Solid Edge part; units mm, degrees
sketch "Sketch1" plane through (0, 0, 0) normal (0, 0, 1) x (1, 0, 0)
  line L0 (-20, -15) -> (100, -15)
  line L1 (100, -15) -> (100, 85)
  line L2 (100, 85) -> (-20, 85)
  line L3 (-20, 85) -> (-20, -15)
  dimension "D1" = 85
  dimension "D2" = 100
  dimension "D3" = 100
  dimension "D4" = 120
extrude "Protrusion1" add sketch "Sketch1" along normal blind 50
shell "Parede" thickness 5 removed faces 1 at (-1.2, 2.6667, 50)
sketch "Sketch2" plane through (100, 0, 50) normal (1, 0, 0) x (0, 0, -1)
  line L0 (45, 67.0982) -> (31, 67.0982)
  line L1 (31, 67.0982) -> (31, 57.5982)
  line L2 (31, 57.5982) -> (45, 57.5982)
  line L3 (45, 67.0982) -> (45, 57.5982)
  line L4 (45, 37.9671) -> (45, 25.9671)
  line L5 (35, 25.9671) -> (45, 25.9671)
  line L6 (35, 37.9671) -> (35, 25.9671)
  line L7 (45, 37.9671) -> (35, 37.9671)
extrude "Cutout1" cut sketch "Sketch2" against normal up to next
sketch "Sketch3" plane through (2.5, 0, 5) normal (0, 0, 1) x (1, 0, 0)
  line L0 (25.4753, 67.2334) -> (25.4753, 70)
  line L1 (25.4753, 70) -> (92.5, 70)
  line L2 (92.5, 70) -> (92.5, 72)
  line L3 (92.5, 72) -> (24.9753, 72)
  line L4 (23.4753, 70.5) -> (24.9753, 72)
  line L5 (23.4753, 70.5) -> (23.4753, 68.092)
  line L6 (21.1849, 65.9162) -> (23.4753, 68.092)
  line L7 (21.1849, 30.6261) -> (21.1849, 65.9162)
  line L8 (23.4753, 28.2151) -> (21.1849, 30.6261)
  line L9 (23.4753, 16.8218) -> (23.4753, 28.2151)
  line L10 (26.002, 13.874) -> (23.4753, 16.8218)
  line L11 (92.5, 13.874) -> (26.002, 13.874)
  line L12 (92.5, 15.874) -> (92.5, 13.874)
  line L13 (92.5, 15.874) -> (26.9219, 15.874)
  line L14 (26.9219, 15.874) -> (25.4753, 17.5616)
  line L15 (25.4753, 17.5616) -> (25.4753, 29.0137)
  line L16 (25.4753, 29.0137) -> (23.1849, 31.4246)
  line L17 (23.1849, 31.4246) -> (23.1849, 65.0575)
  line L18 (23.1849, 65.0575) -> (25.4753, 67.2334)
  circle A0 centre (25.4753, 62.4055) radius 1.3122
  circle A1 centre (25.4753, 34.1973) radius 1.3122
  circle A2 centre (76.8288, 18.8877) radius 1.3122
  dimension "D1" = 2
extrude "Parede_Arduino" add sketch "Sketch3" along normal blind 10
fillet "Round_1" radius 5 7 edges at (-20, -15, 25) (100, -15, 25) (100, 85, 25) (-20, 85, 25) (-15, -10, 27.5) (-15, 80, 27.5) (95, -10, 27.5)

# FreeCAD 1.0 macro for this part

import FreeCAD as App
import Part
import Sketcher

V = App.Vector
Q = App.Units.Quantity


def edges_at(feature, points):
    """Names of the edges that pass closest to the given points."""
    edges = feature.Shape.Edges
    near = lambda p: min(range(len(edges)), key=lambda i: edges[i].distToShape(Part.Vertex(*p))[0])
    return sorted({f"Edge{near(p) + 1}" for p in points})


def faces_at(feature, points):
    """Names of the faces that lie closest to the given points."""
    faces = feature.Shape.Faces
    near = lambda p: min(range(len(faces)), key=lambda i: faces[i].distToShape(Part.Vertex(*p))[0])
    return sorted({f"Face{near(p) + 1}" for p in points})


def add_polygon(sketch, points):
    """Adds a closed chain of lines whose ends are joined by coincident constraints."""
    first, n = sketch.GeometryCount, len(points)
    for a, b in zip(points, points[1:] + points[:1]):
        sketch.addGeometry(Part.LineSegment(App.Vector(*a, 0), App.Vector(*b, 0)), False)
    for i in range(n):
        sketch.addConstraint(Sketcher.Constraint("Coincident", first + i, 2, first + (i + 1) % n, 1))

doc = App.newDocument("Part")
body = doc.addObject("PartDesign::Body", "Body")

sketch1 = body.newObject("Sketcher::SketchObject", "Sketch")
sketch1.AttachmentSupport = (doc.getObject("XY_Plane"), [""])
sketch1.MapMode = "FlatFace"
add_polygon(sketch1, [(-20, 85), (-20, -15), (100, -15), (100, 85)])
sketch1.addConstraint([
    Sketcher.Constraint("Vertical", 0),
    Sketcher.Constraint("Horizontal", 1),
    Sketcher.Constraint("Vertical", 2),
    Sketcher.Constraint("Horizontal", 3),
    Sketcher.Constraint("DistanceX", 0, 2, -1, 1, Q("20 mm")),
    Sketcher.Constraint("DistanceX", 1, 1, 1, 2, Q("120 mm")),
    Sketcher.Constraint("DistanceY", 0, 2, 0, 1, Q("100 mm")),
    Sketcher.Constraint("DistanceY", 0, 2, -1, 1, Q("15 mm")),
])
pad1 = body.newObject("PartDesign::Pad", "Pad")
pad1.Profile = sketch1
pad1.Length = 50
doc.recompute()

thickness = body.newObject("PartDesign::Thickness", "Thickness")
thickness.Base = (pad1, faces_at(pad1, [(-1.2, 2.667, 50)]))
thickness.Value = 5
thickness.Reversed = True
thickness.Join = "Intersection"

sketch2 = body.newObject("Sketcher::SketchObject", "Sketch001")
sketch2.AttachmentSupport = (doc.getObject("YZ_Plane"), [""])
sketch2.MapMode = "FlatFace"
sketch2.AttachmentOffset = App.Placement(V(0, 0, 100), App.Rotation())
add_polygon(sketch2, [(57.5982, 5), (67.0982, 5), (67.0982, 19), (57.5982, 19)])
add_polygon(sketch2, [(25.9671, 5), (37.9671, 5), (37.9671, 15), (25.9671, 15)])
sketch2.addConstraint([
    Sketcher.Constraint("Horizontal", 0),
    Sketcher.Constraint("Vertical", 1),
    Sketcher.Constraint("Horizontal", 2),
    Sketcher.Constraint("Vertical", 3),
    Sketcher.Constraint("Horizontal", 4),
    Sketcher.Constraint("Vertical", 5),
    Sketcher.Constraint("Horizontal", 6),
    Sketcher.Constraint("Vertical", 7),
    Sketcher.Constraint("Horizontal", 3, 2, 4, 2),
    Sketcher.Constraint("DistanceX", 4, 1, 4, 2, Q("12 mm")),
    Sketcher.Constraint("DistanceY", 1, 1, 1, 2, Q("14 mm")),
    Sketcher.Constraint("DistanceY", 5, 1, 5, 2, Q("10 mm")),
    Sketcher.Constraint("DistanceX", 0, 1, 0, 2, Q("9.5 mm")),
    Sketcher.Constraint("DistanceY", -1, 1, 0, 2, Q("5 mm")),
    Sketcher.Constraint("DistanceX", -1, 1, 4, 2, Q("37.967 mm")),
    Sketcher.Constraint("DistanceX", 4, 2, 3, 2, Q("19.631 mm")),
])
pocket1 = body.newObject("PartDesign::Pocket", "Pocket")
pocket1.Profile = sketch2
pocket1.Type = "UpToFirst"

sketch3 = body.newObject("Sketcher::SketchObject", "Sketch002")
sketch3.AttachmentSupport = (doc.getObject("XY_Plane"), [""])
sketch3.MapMode = "FlatFace"
sketch3.AttachmentOffset = App.Placement(V(0, 0, 5), App.Rotation())
add_polygon(sketch3, [(25.6849, 65.0575), (27.9753, 67.2334), (27.9753, 70), (95, 70), (95, 72), (27.4753, 72), (25.9753, 70.5), (25.9753, 68.092), (23.6849, 65.9162), (23.6849, 30.6261), (25.9753, 28.2151), (25.9753, 16.8218), (28.502, 13.874), (95, 13.874), (95, 15.874), (29.4219, 15.874), (27.9753, 17.5616), (27.9753, 29.0137), (25.6849, 31.4246)])
sketch3.addGeometry(Part.Circle(V(27.9753, 62.4055, 0), V(0, 0, 1), 1.3122), False)
sketch3.addGeometry(Part.Circle(V(27.9753, 34.1973, 0), V(0, 0, 1), 1.3122), False)
sketch3.addGeometry(Part.Circle(V(79.3288, 18.8877, 0), V(0, 0, 1), 1.3122), False)
sketch3.addConstraint([
    Sketcher.Constraint("Vertical", 1),
    Sketcher.Constraint("Horizontal", 2),
    Sketcher.Constraint("Vertical", 3),
    Sketcher.Constraint("Horizontal", 4),
    Sketcher.Constraint("Vertical", 6),
    Sketcher.Constraint("Vertical", 8),
    Sketcher.Constraint("Vertical", 10),
    Sketcher.Constraint("Horizontal", 12),
    Sketcher.Constraint("Vertical", 13),
    Sketcher.Constraint("Horizontal", 14),
    Sketcher.Constraint("Vertical", 16),
    Sketcher.Constraint("Vertical", 18),
    Sketcher.Constraint("Equal", 19, 20),
    Sketcher.Constraint("Equal", 20, 21),
    Sketcher.Constraint("Parallel", 0, 7),
    Sketcher.Constraint("Perpendicular", 7, 9),
    Sketcher.Constraint("Parallel", 11, 15),
    Sketcher.Constraint("Parallel", 9, 17),
    Sketcher.Constraint("Vertical", 19, 3, 20, 3),
    Sketcher.Constraint("Vertical", 20, 3, 0, 2),
    Sketcher.Constraint("Vertical", 6, 2, 9, 2),
    Sketcher.Constraint("Vertical", 3, 2, 12, 2),
    Sketcher.Constraint("Vertical", 1, 2, 15, 2),
    Sketcher.Constraint("Equal", 3, 13),
    Sketcher.Constraint("Equal", 0, 7),
    Sketcher.Constraint("DistanceY", 3, 1, 3, 2, Q("2 mm")),
    Sketcher.Constraint("Angle", 5, Q("-135 deg")),
    Sketcher.Constraint("DistanceY", -1, 1, 1, 2, Q("70 mm")),
    Sketcher.Constraint("DistanceX", -1, 1, 2, 2, Q("95 mm")),
    Sketcher.Constraint("DistanceX", 5, 2, 1, 2, Q("2 mm")),
    Sketcher.Constraint("Diameter", 19, Q("2.6244 mm")),
    Sketcher.Constraint("DistanceY", 8, 2, 8, 1, Q("35.29 mm")),
    Sketcher.Constraint("DistanceY", -1, 1, 5, 2, Q("70.5 mm")),
    Sketcher.Constraint("Angle", 7, Q("-136.4699 deg")),
    Sketcher.Constraint("DistanceX", 12, 1, 12, 2, Q("66.498 mm")),
    Sketcher.Constraint("DistanceX", 14, 2, 14, 1, Q("65.578 mm")),
    Sketcher.Constraint("DistanceY", 6, 2, 6, 1, Q("2.408 mm")),
    Sketcher.Constraint("DistanceY", 16, 1, 16, 2, Q("11.452 mm")),
    Sketcher.Constraint("DistanceY", 18, 1, 18, 2, Q("33.633 mm")),
    Sketcher.Constraint("Distance", 7, Q("3.159 mm")),
    Sketcher.Constraint("DistanceX", 2, 1, 2, 2, Q("67.0247 mm")),
    Sketcher.Constraint("DistanceY", 1, 1, 1, 2, Q("2.7666 mm")),
    Sketcher.Constraint("DistanceY", 10, 2, 10, 1, Q("11.3933 mm")),
    Sketcher.Constraint("DistanceY", 19, 3, 0, 2, Q("4.828 mm")),
    Sketcher.Constraint("DistanceY", 20, 3, 0, 2, Q("33.036 mm")),
    Sketcher.Constraint("DistanceX", -1, 1, 21, 3, Q("79.3288 mm")),
    Sketcher.Constraint("DistanceY", -1, 1, 21, 3, Q("18.8877 mm")),
])
pad2 = body.newObject("PartDesign::Pad", "Pad001")
pad2.Profile = sketch3
pad2.Length = 10
doc.recompute()

fillet = body.newObject("PartDesign::Fillet", "Fillet")
fillet.Base = (pad2, edges_at(pad2, [
    (-20, -15, 25),
    (100, -15, 25),
    (100, 85, 25),
    (-20, 85, 25),
    (-15, -10, 27.5),
    (-15, 80, 27.5),
    (95, -10, 27.5),
]))
fillet.Radius = 5

doc.recompute()
